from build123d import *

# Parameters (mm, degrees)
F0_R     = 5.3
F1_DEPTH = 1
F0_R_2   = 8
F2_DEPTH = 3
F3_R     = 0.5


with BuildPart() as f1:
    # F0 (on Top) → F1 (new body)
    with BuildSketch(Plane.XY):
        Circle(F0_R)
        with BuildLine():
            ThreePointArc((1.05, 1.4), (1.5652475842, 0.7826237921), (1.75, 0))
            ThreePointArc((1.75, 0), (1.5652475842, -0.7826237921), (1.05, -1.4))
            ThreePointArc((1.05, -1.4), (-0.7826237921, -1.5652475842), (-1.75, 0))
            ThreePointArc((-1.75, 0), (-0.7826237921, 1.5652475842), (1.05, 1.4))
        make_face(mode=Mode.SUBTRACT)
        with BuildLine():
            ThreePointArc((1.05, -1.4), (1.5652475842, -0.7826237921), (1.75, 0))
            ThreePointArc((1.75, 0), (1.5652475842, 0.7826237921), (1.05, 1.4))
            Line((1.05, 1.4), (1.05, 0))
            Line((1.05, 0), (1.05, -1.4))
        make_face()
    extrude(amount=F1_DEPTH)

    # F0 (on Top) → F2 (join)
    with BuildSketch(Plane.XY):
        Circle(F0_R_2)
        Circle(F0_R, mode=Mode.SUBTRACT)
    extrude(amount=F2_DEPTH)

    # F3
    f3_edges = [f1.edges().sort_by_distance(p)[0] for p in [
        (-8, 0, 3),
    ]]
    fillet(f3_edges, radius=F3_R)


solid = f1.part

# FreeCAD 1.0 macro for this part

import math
import FreeCAD as App
import Part
import Sketcher
from FreeCAD import Vector


def edges_at(feature, points):
    """Names of the edges that pass closest to the given points."""
    edges = feature.Shape.Edges
    near = lambda p: min(range(len(edges)), key=lambda i: edges[i].distToShape(Part.Vertex(*p))[0])
    return sorted({f"Edge{near(p) + 1}" for p in points})

doc = App.newDocument("Part")
params = doc.addObject("Spreadsheet::Sheet", "Params")
for row, (alias, value) in enumerate([
    ("sketch1_diameter", "10.6 mm"),
    ("sketch1_radius", "1.75 mm"),
    ("sketch1_height", "2.8 mm"),
    ("pad1_length", "1 mm"),
    ("sketch2_diameter", "16 mm"),
    ("sketch2_diameter2", "10.6 mm"),
    ("pad2_length", "3 mm"),
    ("fillet_radius", "0.5 mm"),
], start=1):
    params.set(f"A{row}", alias)
    params.set(f"B{row}", "=" + value)
    params.setAlias(f"B{row}", alias)

body = doc.addObject("PartDesign::Body", "Body")

sketch1 = body.newObject("Sketcher::SketchObject", "Sketch")
sketch1.AttachmentSupport = (doc.getObject("XY_Plane"), [""])
sketch1.MapMode = "FlatFace"
sketch1.addGeometry([
    Part.Circle(Vector(0, 0, 0), Vector(0, 0, 1), 5.3),
    Part.ArcOfCircle(Part.Circle(Vector(0, 0, 0), Vector(0, 0, 1), 1.8), math.radians(53), math.radians(180)),
    Part.LineSegment(Vector(1.1, 1.4, 0), Vector(1.1, -1.4, 0)),
    Part.ArcOfCircle(Part.Circle(Vector(0, 0, 0), Vector(0, 0, 1), 1.8), math.radians(180), math.radians(307)),
], False)
sketch1.addConstraint([
    Sketcher.Constraint("Coincident", 1, 1, 2, 1),
    Sketcher.Constraint("Coincident", 2, 2, 3, 2),
    Sketcher.Constraint("Tangent", 3, 1, 1, 2),
    Sketcher.Constraint("Vertical", 2),
    Sketcher.Constraint("Coincident", 0, 3, -1, 1),
    Sketcher.Constraint("Coincident", 1, 3, -1, 1),
    Sketcher.Constraint("Equal", 1, 3),
    Sketcher.Constraint("PointOnObject", 3, 1, -1),
    Sketcher.Constraint("Diameter", 0, 10.6),
    Sketcher.Constraint("Radius", 1, 1.75),
    Sketcher.Constraint("DistanceY", 2, 2, 2, 1, 2.8),
])
sketch1.setExpression("Constraints[8]", "Params.sketch1_diameter")
sketch1.setExpression("Constraints[9]", "Params.sketch1_radius")
sketch1.setExpression("Constraints[10]", "Params.sketch1_height")
pad1 = body.newObject("PartDesign::Pad", "Pad")
pad1.Profile = sketch1
pad1.setExpression("Length", "Params.pad1_length")

sketch2 = body.newObject("Sketcher::SketchObject", "Sketch001")
sketch2.AttachmentSupport = (doc.getObject("XY_Plane"), [""])
sketch2.MapMode = "FlatFace"
sketch2.addGeometry([
    Part.Circle(Vector(0, 0, 0), Vector(0, 0, 1), 8),
    Part.Circle(Vector(0, 0, 0), Vector(0, 0, 1), 5),
], False)
sketch2.addConstraint([
    Sketcher.Constraint("Coincident", 0, 3, -1, 1),
    Sketcher.Constraint("Coincident", 1, 3, -1, 1),
    Sketcher.Constraint("Diameter", 0, 16.0),
    Sketcher.Constraint("Diameter", 1, 10.6),
])
sketch2.setExpression("Constraints[2]", "Params.sketch2_diameter")
sketch2.setExpression("Constraints[3]", "Params.sketch2_diameter2")
pad2 = body.newObject("PartDesign::Pad", "Pad001")
pad2.Profile = sketch2
pad2.setExpression("Length", "Params.pad2_length")
doc.recompute()

fillet = body.newObject("PartDesign::Fillet", "Fillet")
fillet.Base = (pad2, edges_at(pad2, [(-8, 0, 3)]))
fillet.setExpression("Radius", "Params.fillet_radius")

doc.recompute()
